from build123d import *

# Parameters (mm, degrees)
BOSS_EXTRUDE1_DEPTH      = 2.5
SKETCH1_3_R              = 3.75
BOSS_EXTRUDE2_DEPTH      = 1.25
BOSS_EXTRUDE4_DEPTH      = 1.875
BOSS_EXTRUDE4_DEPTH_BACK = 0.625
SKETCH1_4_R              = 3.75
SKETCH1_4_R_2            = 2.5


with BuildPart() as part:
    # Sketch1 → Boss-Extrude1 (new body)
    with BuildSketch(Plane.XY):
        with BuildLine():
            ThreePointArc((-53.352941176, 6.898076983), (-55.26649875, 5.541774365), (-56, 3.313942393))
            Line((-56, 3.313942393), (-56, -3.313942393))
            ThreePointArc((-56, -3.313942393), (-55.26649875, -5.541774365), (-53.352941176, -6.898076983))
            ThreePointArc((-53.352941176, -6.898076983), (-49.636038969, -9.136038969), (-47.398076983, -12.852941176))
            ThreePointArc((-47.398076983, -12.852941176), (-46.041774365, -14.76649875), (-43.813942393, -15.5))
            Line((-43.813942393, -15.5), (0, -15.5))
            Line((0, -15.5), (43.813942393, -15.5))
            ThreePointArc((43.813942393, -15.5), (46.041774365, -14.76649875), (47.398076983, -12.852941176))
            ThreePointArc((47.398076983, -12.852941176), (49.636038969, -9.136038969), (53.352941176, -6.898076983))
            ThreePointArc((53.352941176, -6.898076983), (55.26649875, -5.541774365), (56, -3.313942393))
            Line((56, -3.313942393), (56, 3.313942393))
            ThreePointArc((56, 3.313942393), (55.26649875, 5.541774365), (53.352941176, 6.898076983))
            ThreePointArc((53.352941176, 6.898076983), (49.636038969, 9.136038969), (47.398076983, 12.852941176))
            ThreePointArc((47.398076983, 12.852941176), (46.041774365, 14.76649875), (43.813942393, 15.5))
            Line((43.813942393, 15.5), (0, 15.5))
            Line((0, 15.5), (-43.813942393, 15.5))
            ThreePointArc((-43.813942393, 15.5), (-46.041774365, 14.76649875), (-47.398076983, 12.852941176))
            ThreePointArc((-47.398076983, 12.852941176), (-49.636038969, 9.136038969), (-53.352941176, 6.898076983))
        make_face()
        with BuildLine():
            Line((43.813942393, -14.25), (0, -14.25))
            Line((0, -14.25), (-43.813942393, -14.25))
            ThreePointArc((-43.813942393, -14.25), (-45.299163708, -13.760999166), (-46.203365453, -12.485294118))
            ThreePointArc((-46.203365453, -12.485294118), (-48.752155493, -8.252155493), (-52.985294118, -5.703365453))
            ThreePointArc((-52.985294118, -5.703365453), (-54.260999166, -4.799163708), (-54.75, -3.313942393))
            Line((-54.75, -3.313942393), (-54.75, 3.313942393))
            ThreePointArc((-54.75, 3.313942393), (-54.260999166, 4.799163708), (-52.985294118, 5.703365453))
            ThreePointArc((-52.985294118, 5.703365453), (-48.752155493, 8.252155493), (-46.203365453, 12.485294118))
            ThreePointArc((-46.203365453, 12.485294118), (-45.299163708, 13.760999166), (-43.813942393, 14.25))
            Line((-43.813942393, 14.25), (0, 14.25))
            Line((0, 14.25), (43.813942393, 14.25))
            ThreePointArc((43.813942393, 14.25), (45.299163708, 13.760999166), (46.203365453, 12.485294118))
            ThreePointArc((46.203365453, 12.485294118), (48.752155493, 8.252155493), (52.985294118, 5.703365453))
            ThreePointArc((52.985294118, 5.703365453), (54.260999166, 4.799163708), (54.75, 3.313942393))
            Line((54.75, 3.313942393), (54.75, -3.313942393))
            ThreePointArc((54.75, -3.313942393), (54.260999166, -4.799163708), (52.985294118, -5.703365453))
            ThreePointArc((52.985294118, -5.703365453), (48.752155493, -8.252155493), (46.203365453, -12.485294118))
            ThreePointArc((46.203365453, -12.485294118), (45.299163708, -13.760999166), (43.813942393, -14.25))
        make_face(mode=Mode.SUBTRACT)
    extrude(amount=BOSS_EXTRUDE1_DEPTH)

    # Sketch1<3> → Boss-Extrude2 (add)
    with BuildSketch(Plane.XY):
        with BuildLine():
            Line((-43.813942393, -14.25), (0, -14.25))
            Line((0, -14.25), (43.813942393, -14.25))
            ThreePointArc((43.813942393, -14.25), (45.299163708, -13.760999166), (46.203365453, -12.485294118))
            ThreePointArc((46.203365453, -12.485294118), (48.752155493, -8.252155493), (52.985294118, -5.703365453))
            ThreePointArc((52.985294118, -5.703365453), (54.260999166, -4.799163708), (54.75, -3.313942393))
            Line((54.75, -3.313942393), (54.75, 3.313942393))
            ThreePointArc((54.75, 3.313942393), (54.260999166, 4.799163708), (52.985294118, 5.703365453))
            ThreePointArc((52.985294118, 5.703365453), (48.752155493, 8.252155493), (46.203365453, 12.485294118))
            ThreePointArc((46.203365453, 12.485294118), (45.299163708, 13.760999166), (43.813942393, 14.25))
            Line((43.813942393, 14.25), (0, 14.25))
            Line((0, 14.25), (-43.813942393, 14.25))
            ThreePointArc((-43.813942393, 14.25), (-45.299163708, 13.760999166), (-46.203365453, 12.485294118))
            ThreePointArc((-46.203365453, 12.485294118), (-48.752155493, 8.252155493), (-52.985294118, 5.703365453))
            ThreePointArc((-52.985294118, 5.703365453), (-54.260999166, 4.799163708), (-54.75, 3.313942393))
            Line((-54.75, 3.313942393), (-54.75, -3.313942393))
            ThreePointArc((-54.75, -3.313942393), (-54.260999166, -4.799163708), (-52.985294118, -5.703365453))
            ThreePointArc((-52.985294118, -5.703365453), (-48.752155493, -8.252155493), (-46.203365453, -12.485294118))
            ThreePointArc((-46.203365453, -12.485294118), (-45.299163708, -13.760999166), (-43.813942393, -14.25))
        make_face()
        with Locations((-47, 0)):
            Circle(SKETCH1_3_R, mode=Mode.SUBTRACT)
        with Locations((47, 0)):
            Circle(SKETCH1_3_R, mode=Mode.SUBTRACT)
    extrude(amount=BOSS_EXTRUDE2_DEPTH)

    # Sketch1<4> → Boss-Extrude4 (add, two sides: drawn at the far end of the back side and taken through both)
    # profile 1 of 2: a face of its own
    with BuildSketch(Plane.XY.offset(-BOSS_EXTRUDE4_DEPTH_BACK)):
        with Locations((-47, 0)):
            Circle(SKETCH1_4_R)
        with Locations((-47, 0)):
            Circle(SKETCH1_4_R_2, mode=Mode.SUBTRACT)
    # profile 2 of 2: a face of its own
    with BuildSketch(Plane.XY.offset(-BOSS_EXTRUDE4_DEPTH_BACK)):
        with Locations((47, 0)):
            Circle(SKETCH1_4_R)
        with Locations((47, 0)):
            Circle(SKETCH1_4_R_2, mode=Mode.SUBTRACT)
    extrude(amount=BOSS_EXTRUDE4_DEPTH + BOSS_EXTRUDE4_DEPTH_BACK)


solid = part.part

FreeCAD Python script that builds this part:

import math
import FreeCAD as App
import Part
import Sketcher

V = App.Vector
Q = App.Units.Quantity

doc = App.newDocument("Part")
params = doc.addObject("Spreadsheet::Sheet", "Params")
for row, (alias, value) in enumerate([
    ("sketch1_radius", "9 mm"),
    ("sketch1_radius2", "2.5 mm"),
    ("sketch1_radius3", "3.75 mm"),
    ("pad1_length", "2.5 mm"),
    ("sketch2_diameter", "7.5 mm"),
    ("sketch2_radius", "2.5 mm"),
    ("sketch2_radius2", "10.25 mm"),
    ("pad2_length", "1.25 mm"),
    ("sketch3_diameter", "5 mm"),
    ("sketch3_diameter2", "7.5 mm"),
    ("pad3_length", "1.875 mm"),
    ("pad3_length2", "0.625 mm"),
], start=1):
    params.set(f"A{row}", alias)
    params.set(f"B{row}", "=" + value)
    params.setAlias(f"B{row}", alias)

body = doc.addObject("PartDesign::Body", "Body")

sketch1 = body.newObject("Sketcher::SketchObject", "Sketch")
sketch1.AttachmentSupport = (doc.getObject("XY_Plane"), [""])
sketch1.MapMode = "FlatFace"
sketch1.addGeometry(Part.ArcOfCircle(Part.Circle(V(-52.3, 3.3, 0), V(0, 0, 1), 3.7), math.radians(107), math.radians(180)), False)
sketch1.addGeometry(Part.LineSegment(V(-56, 3.3, 0), V(-56, -3.3, 0)), False)
sketch1.addGeometry(Part.ArcOfCircle(Part.Circle(V(-52.3, -3.3, 0), V(0, 0, 1), 3.7), math.radians(180), math.radians(253)), False)
sketch1.addGeometry(Part.ArcOfCircle(Part.Circle(V(-56, -15.5, 0), V(0, 0, 1), 9), math.radians(17), math.radians(73)), False)
sketch1.addGeometry(Part.ArcOfCircle(Part.Circle(V(-43.8, -11.8, 0), V(0, 0, 1), 3.7), math.radians(-163), math.radians(-90)), False)
sketch1.addGeometry(Part.LineSegment(V(-43.8, -15.5, 0), V(43.8, -15.5, 0)), False)
sketch1.addGeometry(Part.ArcOfCircle(Part.Circle(V(43.8, -11.8, 0), V(0, 0, 1), 3.7), math.radians(-90), math.radians(-17)), False)
sketch1.addGeometry(Part.ArcOfCircle(Part.Circle(V(56, -15.5, 0), V(0, 0, 1), 9), math.radians(107), math.radians(163)), False)
sketch1.addGeometry(Part.ArcOfCircle(Part.Circle(V(52.3, -3.3, 0), V(0, 0, 1), 3.7), math.radians(-73), math.radians(0)), False)
sketch1.addGeometry(Part.LineSegment(V(56, -3.3, 0), V(56, 3.3, 0)), False)
sketch1.addGeometry(Part.ArcOfCircle(Part.Circle(V(52.3, 3.3, 0), V(0, 0, 1), 3.7), math.radians(0), math.radians(73)), False)
sketch1.addGeometry(Part.ArcOfCircle(Part.Circle(V(56, 15.5, 0), V(0, 0, 1), 9), math.radians(-163), math.radians(-107)), False)
sketch1.addGeometry(Part.ArcOfCircle(Part.Circle(V(43.8, 11.8, 0), V(0, 0, 1), 3.7), math.radians(17), math.radians(90)), False)
sketch1.addGeometry(Part.LineSegment(V(43.8, 15.5, 0), V(-43.8, 15.5, 0)), False)
sketch1.addGeometry(Part.ArcOfCircle(Part.Circle(V(-43.8, 11.8, 0), V(0, 0, 1), 3.7), math.radians(90), math.radians(163)), False)
sketch1.addGeometry(Part.ArcOfCircle(Part.Circle(V(-56, 15.5, 0), V(0, 0, 1), 9), math.radians(-73), math.radians(-17)), False)
sketch1.addGeometry(Part.ArcOfCircle(Part.Circle(V(43.8, -11.8, 0), V(0, 0, 1), 2.5), math.radians(-90), math.radians(-17)), False)
sketch1.addGeometry(Part.LineSegment(V(43.8, -14.2, 0), V(-43.8, -14.2, 0)), False)
sketch1.addGeometry(Part.ArcOfCircle(Part.Circle(V(-43.8, -11.8, 0), V(0, 0, 1), 2.5), math.radians(-163), math.radians(-90)), False)
sketch1.addGeometry(Part.ArcOfCircle(Part.Circle(V(-56, -15.5, 0), V(0, 0, 1), 10.3), math.radians(17), math.radians(73)), False)
sketch1.addGeometry(Part.ArcOfCircle(Part.Circle(V(-52.2, -3.3, 0), V(0, 0, 1), 2.5), math.radians(180), math.radians(253)), False)
sketch1.addGeometry(Part.LineSegment(V(-54.8, -3.3, 0), V(-54.8, 3.3, 0)), False)
sketch1.addGeometry(Part.ArcOfCircle(Part.Circle(V(-52.2, 3.3, 0), V(0, 0, 1), 2.5), math.radians(107), math.radians(180)), False)
sketch1.addGeometry(Part.ArcOfCircle(Part.Circle(V(-56, 15.5, 0), V(0, 0, 1), 10.3), math.radians(-73), math.radians(-17)), False)
sketch1.addGeometry(Part.ArcOfCircle(Part.Circle(V(-43.8, 11.8, 0), V(0, 0, 1), 2.5), math.radians(90), math.radians(163)), False)
sketch1.addGeometry(Part.LineSegment(V(-43.8, 14.2, 0), V(43.8, 14.2, 0)), False)
sketch1.addGeometry(Part.ArcOfCircle(Part.Circle(V(43.8, 11.8, 0), V(0, 0, 1), 2.5), math.radians(17), math.radians(90)), False)
sketch1.addGeometry(Part.ArcOfCircle(Part.Circle(V(56, 15.5, 0), V(0, 0, 1), 10.3), math.radians(-163), math.radians(-107)), False)
sketch1.addGeometry(Part.ArcOfCircle(Part.Circle(V(52.2, 3.3, 0), V(0, 0, 1), 2.5), math.radians(0), math.radians(73)), False)
sketch1.addGeometry(Part.LineSegment(V(54.8, 3.3, 0), V(54.8, -3.3, 0)), False)
sketch1.addGeometry(Part.ArcOfCircle(Part.Circle(V(52.2, -3.3, 0), V(0, 0, 1), 2.5), math.radians(-73), math.radians(0)), False)
sketch1.addGeometry(Part.ArcOfCircle(Part.Circle(V(56, -15.5, 0), V(0, 0, 1), 10.3), math.radians(107), math.radians(163)), False)
sketch1.addConstraint(Sketcher.Constraint("Tangent", 0, 2, 1, 1))
sketch1.addConstraint(Sketcher.Constraint("Tangent", 1, 2, 2, 1))
sketch1.addConstraint(Sketcher.Constraint("Tangent", 2, 2, 3, 2))
sketch1.addConstraint(Sketcher.Constraint("Tangent", 3, 1, 4, 1))
sketch1.addConstraint(Sketcher.Constraint("Tangent", 4, 2, 5, 1))
sketch1.addConstraint(Sketcher.Constraint("Tangent", 5, 2, 6, 1))
sketch1.addConstraint(Sketcher.Constraint("Tangent", 6, 2, 7, 2))
sketch1.addConstraint(Sketcher.Constraint("Tangent", 7, 1, 8, 1))
sketch1.addConstraint(Sketcher.Constraint("Tangent", 8, 2, 9, 1))
sketch1.addConstraint(Sketcher.Constraint("Tangent", 9, 2, 10, 1))
sketch1.addConstraint(Sketcher.Constraint("Tangent", 10, 2, 11, 2))
sketch1.addConstraint(Sketcher.Constraint("Tangent", 11, 1, 12, 1))
sketch1.addConstraint(Sketcher.Constraint("Tangent", 12, 2, 13, 1))
sketch1.addConstraint(Sketcher.Constraint("Tangent", 13, 2, 14, 1))
sketch1.addConstraint(Sketcher.Constraint("Tangent", 14, 2, 15, 2))
sketch1.addConstraint(Sketcher.Constraint("Tangent", 15, 1, 0, 1))
sketch1.addConstraint(Sketcher.Constraint("Tangent", 16, 1, 17, 1))
sketch1.addConstraint(Sketcher.Constraint("Tangent", 17, 2, 18, 2))
sketch1.addConstraint(Sketcher.Constraint("Tangent", 18, 1, 19, 1))
sketch1.addConstraint(Sketcher.Constraint("Tangent", 19, 2, 20, 2))
sketch1.addConstraint(Sketcher.Constraint("Tangent", 20, 1, 21, 1))
sketch1.addConstraint(Sketcher.Constraint("Tangent", 21, 2, 22, 2))
sketch1.addConstraint(Sketcher.Constraint("Tangent", 22, 1, 23, 1))
sketch1.addConstraint(Sketcher.Constraint("Tangent", 23, 2, 24, 2))
sketch1.addConstraint(Sketcher.Constraint("Tangent", 24, 1, 25, 1))
sketch1.addConstraint(Sketcher.Constraint("Tangent", 25, 2, 26, 2))
sketch1.addConstraint(Sketcher.Constraint("Tangent", 26, 1, 27, 1))
sketch1.addConstraint(Sketcher.Constraint("Tangent", 27, 2, 28, 2))
sketch1.addConstraint(Sketcher.Constraint("Tangent", 28, 1, 29, 1))
sketch1.addConstraint(Sketcher.Constraint("Tangent", 29, 2, 30, 2))
sketch1.addConstraint(Sketcher.Constraint("Tangent", 30, 1, 31, 1))
sketch1.addConstraint(Sketcher.Constraint("Tangent", 31, 2, 16, 2))
sketch1.addConstraint(Sketcher.Constraint("Vertical", 1))
sketch1.addConstraint(Sketcher.Constraint("Horizontal", 5))
sketch1.addConstraint(Sketcher.Constraint("Vertical", 9))
sketch1.addConstraint(Sketcher.Constraint("Horizontal", 13))
sketch1.addConstraint(Sketcher.Constraint("Horizontal", 17))
sketch1.addConstraint(Sketcher.Constraint("Vertical", 21))
sketch1.addConstraint(Sketcher.Constraint("Horizontal", 25))
sketch1.addConstraint(Sketcher.Constraint("Vertical", 29))
sketch1.addConstraint(Sketcher.Constraint("Coincident", 16, 3, 6, 3))
sketch1.addConstraint(Sketcher.Constraint("Coincident", 18, 3, 4, 3))
sketch1.addConstraint(Sketcher.Constraint("Coincident", 19, 3, 3, 3))
sketch1.addConstraint(Sketcher.Constraint("Coincident", 20, 3, 2, 3))
sketch1.addConstraint(Sketcher.Constraint("Coincident", 22, 3, 0, 3))
sketch1.addConstraint(Sketcher.Constraint("Coincident", 23, 3, 15, 3))
sketch1.addConstraint(Sketcher.Constraint("Coincident", 24, 3, 14, 3))
sketch1.addConstraint(Sketcher.Constraint("Coincident", 26, 3, 12, 3))
sketch1.addConstraint(Sketcher.Constraint("Coincident", 27, 3, 11, 3))
sketch1.addConstraint(Sketcher.Constraint("Coincident", 28, 3, 10, 3))
sketch1.addConstraint(Sketcher.Constraint("Coincident", 30, 3, 8, 3))
sketch1.addConstraint(Sketcher.Constraint("Equal", 0, 2))
sketch1.addConstraint(Sketcher.Constraint("Equal", 2, 4))
sketch1.addConstraint(Sketcher.Constraint("Equal", 4, 6))
sketch1.addConstraint(Sketcher.Constraint("Equal", 3, 7))
sketch1.addConstraint(Sketcher.Constraint("Equal", 6, 8))
sketch1.addConstraint(Sketcher.Constraint("Equal", 8, 10))
sketch1.addConstraint(Sketcher.Constraint("Equal", 7, 11))
sketch1.addConstraint(Sketcher.Constraint("Equal", 10, 12))
sketch1.addConstraint(Sketcher.Constraint("Equal", 12, 14))
sketch1.addConstraint(Sketcher.Constraint("Equal", 11, 15))
sketch1.addConstraint(Sketcher.Constraint("Equal", 27, 31))
sketch1.addConstraint(Sketcher.Constraint("Symmetric", 0, 3, 8, 3, -1, 1))
sketch1.addConstraint(Sketcher.Constraint("Symmetric", 3, 3, 11, 3, -1, 1))
sketch1.addConstraint(Sketcher.Constraint("Symmetric", 6, 3, 14, 3, -1, 1))
sketch1.addConstraint(Sketcher.Constraint("Symmetric", 3, 3, 7, 3, -2))
sketch1.addConstraint(Sketcher.Constraint("Horizontal", 31, 3, 4, 2))
sketch1.addConstraint(Sketcher.Constraint("Vertical", 23, 3, 0, 2))
sketch1.addConstraint(Sketcher.Constraint("Radius", 3, Q("9 mm")))
sketch1.addConstraint(Sketcher.Constraint("Radius", 16, Q("2.5 mm")))
sketch1.addConstraint(Sketcher.Constraint("Radius", 0, Q("3.75 mm")))
sketch1.addConstraint(Sketcher.Constraint("DistanceX", 3, 3, -1, 1, Q("56 mm")))
sketch1.addConstraint(Sketcher.Constraint("DistanceY", 7, 3, 11, 3, Q("31 mm")))
sketch1.setExpression("Constraints[68]", "Params.sketch1_radius")
sketch1.setExpression("Constraints[69]", "Params.sketch1_radius2")
sketch1.setExpression("Constraints[70]", "Params.sketch1_radius3")
pad1 = body.newObject("PartDesign::Pad", "Pad")
pad1.Profile = sketch1
pad1.setExpression("Length", "Params.pad1_length")

sketch2 = body.newObject("Sketcher::SketchObject", "Sketch001")
sketch2.AttachmentSupport = (doc.getObject("XY_Plane"), [""])
sketch2.MapMode = "FlatFace"
sketch2.addGeometry(Part.LineSegment(V(-43.8, -14.2, 0), V(43.8, -14.2, 0)), False)
sketch2.addGeometry(Part.ArcOfCircle(Part.Circle(V(43.8, -11.8, 0), V(0, 0, 1), 2.5), math.radians(-90), math.radians(-17)), False)
sketch2.addGeometry(Part.ArcOfCircle(Part.Circle(V(56, -15.5, 0), V(0, 0, 1), 10.3), math.radians(107), math.radians(163)), False)
sketch2.addGeometry(Part.ArcOfCircle(Part.Circle(V(52.2, -3.3, 0), V(0, 0, 1), 2.5), math.radians(-73), math.radians(0)), False)
sketch2.addGeometry(Part.LineSegment(V(54.8, -3.3, 0), V(54.8, 3.3, 0)), False)
sketch2.addGeometry(Part.ArcOfCircle(Part.Circle(V(52.2, 3.3, 0), V(0, 0, 1), 2.5), math.radians(0), math.radians(73)), False)
sketch2.addGeometry(Part.ArcOfCircle(Part.Circle(V(56, 15.5, 0), V(0, 0, 1), 10.3), math.radians(-163), math.radians(-107)), False)
sketch2.addGeometry(Part.ArcOfCircle(Part.Circle(V(43.8, 11.8, 0), V(0, 0, 1), 2.5), math.radians(17), math.radians(90)), False)
sketch2.addGeometry(Part.LineSegment(V(43.8, 14.2, 0), V(-43.8, 14.2, 0)), False)
sketch2.addGeometry(Part.ArcOfCircle(Part.Circle(V(-43.8, 11.8, 0), V(0, 0, 1), 2.5), math.radians(90), math.radians(163)), False)
sketch2.addGeometry(Part.ArcOfCircle(Part.Circle(V(-56, 15.5, 0), V(0, 0, 1), 10.3), math.radians(-73), math.radians(-17)), False)
sketch2.addGeometry(Part.ArcOfCircle(Part.Circle(V(-52.2, 3.3, 0), V(0, 0, 1), 2.5), math.radians(107), math.radians(180)), False)
sketch2.addGeometry(Part.LineSegment(V(-54.8, 3.3, 0), V(-54.8, -3.3, 0)), False)
sketch2.addGeometry(Part.ArcOfCircle(Part.Circle(V(-52.2, -3.3, 0), V(0, 0, 1), 2.5), math.radians(180), math.radians(253)), False)
sketch2.addGeometry(Part.ArcOfCircle(Part.Circle(V(-56, -15.5, 0), V(0, 0, 1), 10.3), math.radians(17), math.radians(73)), False)
sketch2.addGeometry(Part.ArcOfCircle(Part.Circle(V(-43.8, -11.8, 0), V(0, 0, 1), 2.5), math.radians(-163), math.radians(-90)), False)
sketch2.addGeometry(Part.Circle(V(-47, 0, 0), V(0, 0, 1), 3.8), False)
sketch2.addGeometry(Part.Circle(V(47, 0, 0), V(0, 0, 1), 3.8), False)
sketch2.addConstraint(Sketcher.Constraint("Tangent", 0, 2, 1, 1))
sketch2.addConstraint(Sketcher.Constraint("Tangent", 1, 2, 2, 2))
sketch2.addConstraint(Sketcher.Constraint("Tangent", 2, 1, 3, 1))
sketch2.addConstraint(Sketcher.Constraint("Tangent", 3, 2, 4, 1))
sketch2.addConstraint(Sketcher.Constraint("Tangent", 4, 2, 5, 1))
sketch2.addConstraint(Sketcher.Constraint("Tangent", 5, 2, 6, 2))
sketch2.addConstraint(Sketcher.Constraint("Tangent", 6, 1, 7, 1))
sketch2.addConstraint(Sketcher.Constraint("Tangent", 7, 2, 8, 1))
sketch2.addConstraint(Sketcher.Constraint("Tangent", 8, 2, 9, 1))
sketch2.addConstraint(Sketcher.Constraint("Tangent", 9, 2, 10, 2))
sketch2.addConstraint(Sketcher.Constraint("Tangent", 10, 1, 11, 1))
sketch2.addConstraint(Sketcher.Constraint("Tangent", 11, 2, 12, 1))
sketch2.addConstraint(Sketcher.Constraint("Tangent", 12, 2, 13, 1))
sketch2.addConstraint(Sketcher.Constraint("Tangent", 13, 2, 14, 2))
sketch2.addConstraint(Sketcher.Constraint("Tangent", 14, 1, 15, 1))
sketch2.addConstraint(Sketcher.Constraint("Tangent", 15, 2, 0, 1))
sketch2.addConstraint(Sketcher.Constraint("Horizontal", 0))
sketch2.addConstraint(Sketcher.Constraint("Vertical", 4))
sketch2.addConstraint(Sketcher.Constraint("Horizontal", 8))
sketch2.addConstraint(Sketcher.Constraint("Vertical", 12))
sketch2.addConstraint(Sketcher.Constraint("Equal", 1, 3))
sketch2.addConstraint(Sketcher.Constraint("Equal", 3, 5))
sketch2.addConstraint(Sketcher.Constraint("Equal", 2, 6))
sketch2.addConstraint(Sketcher.Constraint("Equal", 5, 7))
sketch2.addConstraint(Sketcher.Constraint("Equal", 7, 9))
sketch2.addConstraint(Sketcher.Constraint("Equal", 6, 10))
sketch2.addConstraint(Sketcher.Constraint("Equal", 9, 11))
sketch2.addConstraint(Sketcher.Constraint("Equal", 11, 13))
sketch2.addConstraint(Sketcher.Constraint("Equal", 10, 14))
sketch2.addConstraint(Sketcher.Constraint("Equal", 13, 15))
sketch2.addConstraint(Sketcher.Constraint("Equal", 16, 17))
sketch2.addConstraint(Sketcher.Constraint("Symmetric", 1, 3, 9, 3, -1, 1))
sketch2.addConstraint(Sketcher.Constraint("Symmetric", 3, 3, 11, 3, -1, 1))
sketch2.addConstraint(Sketcher.Constraint("Symmetric", 6, 3, 14, 3, -1, 1))
sketch2.addConstraint(Sketcher.Constraint("Symmetric", 16, 3, 17, 3, -1, 1))
sketch2.addConstraint(Sketcher.Constraint("Symmetric", 6, 3, 10, 3, -2))
sketch2.addConstraint(Sketcher.Constraint("PointOnObject", 16, 3, -1))
sketch2.addConstraint(Sketcher.Constraint("Diameter", 16, Q("7.5 mm")))
sketch2.addConstraint(Sketcher.Constraint("Radius", 1, Q("2.5 mm")))
sketch2.addConstraint(Sketcher.Constraint("Radius", 2, Q("10.25 mm")))
sketch2.addConstraint(Sketcher.Constraint("DistanceX", -1, 1, 2, 3, Q("56 mm")))
sketch2.addConstraint(Sketcher.Constraint("DistanceX", 16, 3, -1, 1, Q("47 mm")))
sketch2.addConstraint(Sketcher.Constraint("DistanceY", 2, 3, 6, 3, Q("31 mm")))
sketch2.addConstraint(Sketcher.Constraint("DistanceY", 1, 3, 7, 3, Q("23.5 mm")))
sketch2.addConstraint(Sketcher.Constraint("DistanceX", 11, 3, 5, 3, Q("104.5 mm")))
sketch2.setExpression("Constraints[37]", "Params.sketch2_diameter")
sketch2.setExpression("Constraints[38]", "Params.sketch2_radius")
sketch2.setExpression("Constraints[39]", "Params.sketch2_radius2")
pad2 = body.newObject("PartDesign::Pad", "Pad001")
pad2.Profile = sketch2
pad2.setExpression("Length", "Params.pad2_length")

sketch3 = body.newObject("Sketcher::SketchObject", "Sketch002")
sketch3.AttachmentSupport = (doc.getObject("XY_Plane"), [""])
sketch3.MapMode = "FlatFace"
sketch3.addGeometry(Part.Circle(V(-47, 0, 0), V(0, 0, 1), 3.8), False)
sketch3.addGeometry(Part.Circle(V(-47, 0, 0), V(0, 0, 1), 2.5), False)
sketch3.addGeometry(Part.Circle(V(47, 0, 0), V(0, 0, 1), 3.8), False)
sketch3.addGeometry(Part.Circle(V(47, 0, 0), V(0, 0, 1), 2.5), False)
sketch3.addConstraint(Sketcher.Constraint("Coincident", 1, 3, 0, 3))
sketch3.addConstraint(Sketcher.Constraint("Coincident", 3, 3, 2, 3))
sketch3.addConstraint(Sketcher.Constraint("Equal", 0, 2))
sketch3.addConstraint(Sketcher.Constraint("Equal", 1, 3))
sketch3.addConstraint(Sketcher.Constraint("Symmetric", 0, 3, 2, 3, -1, 1))
sketch3.addConstraint(Sketcher.Constraint("PointOnObject", 0, 3, -1))
sketch3.addConstraint(Sketcher.Constraint("Diameter", 1, Q("5 mm")))
sketch3.addConstraint(Sketcher.Constraint("Diameter", 0, Q("7.5 mm")))
sketch3.addConstraint(Sketcher.Constraint("DistanceX", 0, 3, -1, 1, Q("47 mm")))
sketch3.setExpression("Constraints[6]", "Params.sketch3_diameter")
sketch3.setExpression("Constraints[7]", "Params.sketch3_diameter2")
pad3 = body.newObject("PartDesign::Pad", "Pad002")
pad3.Profile = sketch3
pad3.Type = "TwoLengths"
pad3.setExpression("Length", "Params.pad3_length")
pad3.setExpression("Length2", "Params.pad3_length2")

doc.recompute()
